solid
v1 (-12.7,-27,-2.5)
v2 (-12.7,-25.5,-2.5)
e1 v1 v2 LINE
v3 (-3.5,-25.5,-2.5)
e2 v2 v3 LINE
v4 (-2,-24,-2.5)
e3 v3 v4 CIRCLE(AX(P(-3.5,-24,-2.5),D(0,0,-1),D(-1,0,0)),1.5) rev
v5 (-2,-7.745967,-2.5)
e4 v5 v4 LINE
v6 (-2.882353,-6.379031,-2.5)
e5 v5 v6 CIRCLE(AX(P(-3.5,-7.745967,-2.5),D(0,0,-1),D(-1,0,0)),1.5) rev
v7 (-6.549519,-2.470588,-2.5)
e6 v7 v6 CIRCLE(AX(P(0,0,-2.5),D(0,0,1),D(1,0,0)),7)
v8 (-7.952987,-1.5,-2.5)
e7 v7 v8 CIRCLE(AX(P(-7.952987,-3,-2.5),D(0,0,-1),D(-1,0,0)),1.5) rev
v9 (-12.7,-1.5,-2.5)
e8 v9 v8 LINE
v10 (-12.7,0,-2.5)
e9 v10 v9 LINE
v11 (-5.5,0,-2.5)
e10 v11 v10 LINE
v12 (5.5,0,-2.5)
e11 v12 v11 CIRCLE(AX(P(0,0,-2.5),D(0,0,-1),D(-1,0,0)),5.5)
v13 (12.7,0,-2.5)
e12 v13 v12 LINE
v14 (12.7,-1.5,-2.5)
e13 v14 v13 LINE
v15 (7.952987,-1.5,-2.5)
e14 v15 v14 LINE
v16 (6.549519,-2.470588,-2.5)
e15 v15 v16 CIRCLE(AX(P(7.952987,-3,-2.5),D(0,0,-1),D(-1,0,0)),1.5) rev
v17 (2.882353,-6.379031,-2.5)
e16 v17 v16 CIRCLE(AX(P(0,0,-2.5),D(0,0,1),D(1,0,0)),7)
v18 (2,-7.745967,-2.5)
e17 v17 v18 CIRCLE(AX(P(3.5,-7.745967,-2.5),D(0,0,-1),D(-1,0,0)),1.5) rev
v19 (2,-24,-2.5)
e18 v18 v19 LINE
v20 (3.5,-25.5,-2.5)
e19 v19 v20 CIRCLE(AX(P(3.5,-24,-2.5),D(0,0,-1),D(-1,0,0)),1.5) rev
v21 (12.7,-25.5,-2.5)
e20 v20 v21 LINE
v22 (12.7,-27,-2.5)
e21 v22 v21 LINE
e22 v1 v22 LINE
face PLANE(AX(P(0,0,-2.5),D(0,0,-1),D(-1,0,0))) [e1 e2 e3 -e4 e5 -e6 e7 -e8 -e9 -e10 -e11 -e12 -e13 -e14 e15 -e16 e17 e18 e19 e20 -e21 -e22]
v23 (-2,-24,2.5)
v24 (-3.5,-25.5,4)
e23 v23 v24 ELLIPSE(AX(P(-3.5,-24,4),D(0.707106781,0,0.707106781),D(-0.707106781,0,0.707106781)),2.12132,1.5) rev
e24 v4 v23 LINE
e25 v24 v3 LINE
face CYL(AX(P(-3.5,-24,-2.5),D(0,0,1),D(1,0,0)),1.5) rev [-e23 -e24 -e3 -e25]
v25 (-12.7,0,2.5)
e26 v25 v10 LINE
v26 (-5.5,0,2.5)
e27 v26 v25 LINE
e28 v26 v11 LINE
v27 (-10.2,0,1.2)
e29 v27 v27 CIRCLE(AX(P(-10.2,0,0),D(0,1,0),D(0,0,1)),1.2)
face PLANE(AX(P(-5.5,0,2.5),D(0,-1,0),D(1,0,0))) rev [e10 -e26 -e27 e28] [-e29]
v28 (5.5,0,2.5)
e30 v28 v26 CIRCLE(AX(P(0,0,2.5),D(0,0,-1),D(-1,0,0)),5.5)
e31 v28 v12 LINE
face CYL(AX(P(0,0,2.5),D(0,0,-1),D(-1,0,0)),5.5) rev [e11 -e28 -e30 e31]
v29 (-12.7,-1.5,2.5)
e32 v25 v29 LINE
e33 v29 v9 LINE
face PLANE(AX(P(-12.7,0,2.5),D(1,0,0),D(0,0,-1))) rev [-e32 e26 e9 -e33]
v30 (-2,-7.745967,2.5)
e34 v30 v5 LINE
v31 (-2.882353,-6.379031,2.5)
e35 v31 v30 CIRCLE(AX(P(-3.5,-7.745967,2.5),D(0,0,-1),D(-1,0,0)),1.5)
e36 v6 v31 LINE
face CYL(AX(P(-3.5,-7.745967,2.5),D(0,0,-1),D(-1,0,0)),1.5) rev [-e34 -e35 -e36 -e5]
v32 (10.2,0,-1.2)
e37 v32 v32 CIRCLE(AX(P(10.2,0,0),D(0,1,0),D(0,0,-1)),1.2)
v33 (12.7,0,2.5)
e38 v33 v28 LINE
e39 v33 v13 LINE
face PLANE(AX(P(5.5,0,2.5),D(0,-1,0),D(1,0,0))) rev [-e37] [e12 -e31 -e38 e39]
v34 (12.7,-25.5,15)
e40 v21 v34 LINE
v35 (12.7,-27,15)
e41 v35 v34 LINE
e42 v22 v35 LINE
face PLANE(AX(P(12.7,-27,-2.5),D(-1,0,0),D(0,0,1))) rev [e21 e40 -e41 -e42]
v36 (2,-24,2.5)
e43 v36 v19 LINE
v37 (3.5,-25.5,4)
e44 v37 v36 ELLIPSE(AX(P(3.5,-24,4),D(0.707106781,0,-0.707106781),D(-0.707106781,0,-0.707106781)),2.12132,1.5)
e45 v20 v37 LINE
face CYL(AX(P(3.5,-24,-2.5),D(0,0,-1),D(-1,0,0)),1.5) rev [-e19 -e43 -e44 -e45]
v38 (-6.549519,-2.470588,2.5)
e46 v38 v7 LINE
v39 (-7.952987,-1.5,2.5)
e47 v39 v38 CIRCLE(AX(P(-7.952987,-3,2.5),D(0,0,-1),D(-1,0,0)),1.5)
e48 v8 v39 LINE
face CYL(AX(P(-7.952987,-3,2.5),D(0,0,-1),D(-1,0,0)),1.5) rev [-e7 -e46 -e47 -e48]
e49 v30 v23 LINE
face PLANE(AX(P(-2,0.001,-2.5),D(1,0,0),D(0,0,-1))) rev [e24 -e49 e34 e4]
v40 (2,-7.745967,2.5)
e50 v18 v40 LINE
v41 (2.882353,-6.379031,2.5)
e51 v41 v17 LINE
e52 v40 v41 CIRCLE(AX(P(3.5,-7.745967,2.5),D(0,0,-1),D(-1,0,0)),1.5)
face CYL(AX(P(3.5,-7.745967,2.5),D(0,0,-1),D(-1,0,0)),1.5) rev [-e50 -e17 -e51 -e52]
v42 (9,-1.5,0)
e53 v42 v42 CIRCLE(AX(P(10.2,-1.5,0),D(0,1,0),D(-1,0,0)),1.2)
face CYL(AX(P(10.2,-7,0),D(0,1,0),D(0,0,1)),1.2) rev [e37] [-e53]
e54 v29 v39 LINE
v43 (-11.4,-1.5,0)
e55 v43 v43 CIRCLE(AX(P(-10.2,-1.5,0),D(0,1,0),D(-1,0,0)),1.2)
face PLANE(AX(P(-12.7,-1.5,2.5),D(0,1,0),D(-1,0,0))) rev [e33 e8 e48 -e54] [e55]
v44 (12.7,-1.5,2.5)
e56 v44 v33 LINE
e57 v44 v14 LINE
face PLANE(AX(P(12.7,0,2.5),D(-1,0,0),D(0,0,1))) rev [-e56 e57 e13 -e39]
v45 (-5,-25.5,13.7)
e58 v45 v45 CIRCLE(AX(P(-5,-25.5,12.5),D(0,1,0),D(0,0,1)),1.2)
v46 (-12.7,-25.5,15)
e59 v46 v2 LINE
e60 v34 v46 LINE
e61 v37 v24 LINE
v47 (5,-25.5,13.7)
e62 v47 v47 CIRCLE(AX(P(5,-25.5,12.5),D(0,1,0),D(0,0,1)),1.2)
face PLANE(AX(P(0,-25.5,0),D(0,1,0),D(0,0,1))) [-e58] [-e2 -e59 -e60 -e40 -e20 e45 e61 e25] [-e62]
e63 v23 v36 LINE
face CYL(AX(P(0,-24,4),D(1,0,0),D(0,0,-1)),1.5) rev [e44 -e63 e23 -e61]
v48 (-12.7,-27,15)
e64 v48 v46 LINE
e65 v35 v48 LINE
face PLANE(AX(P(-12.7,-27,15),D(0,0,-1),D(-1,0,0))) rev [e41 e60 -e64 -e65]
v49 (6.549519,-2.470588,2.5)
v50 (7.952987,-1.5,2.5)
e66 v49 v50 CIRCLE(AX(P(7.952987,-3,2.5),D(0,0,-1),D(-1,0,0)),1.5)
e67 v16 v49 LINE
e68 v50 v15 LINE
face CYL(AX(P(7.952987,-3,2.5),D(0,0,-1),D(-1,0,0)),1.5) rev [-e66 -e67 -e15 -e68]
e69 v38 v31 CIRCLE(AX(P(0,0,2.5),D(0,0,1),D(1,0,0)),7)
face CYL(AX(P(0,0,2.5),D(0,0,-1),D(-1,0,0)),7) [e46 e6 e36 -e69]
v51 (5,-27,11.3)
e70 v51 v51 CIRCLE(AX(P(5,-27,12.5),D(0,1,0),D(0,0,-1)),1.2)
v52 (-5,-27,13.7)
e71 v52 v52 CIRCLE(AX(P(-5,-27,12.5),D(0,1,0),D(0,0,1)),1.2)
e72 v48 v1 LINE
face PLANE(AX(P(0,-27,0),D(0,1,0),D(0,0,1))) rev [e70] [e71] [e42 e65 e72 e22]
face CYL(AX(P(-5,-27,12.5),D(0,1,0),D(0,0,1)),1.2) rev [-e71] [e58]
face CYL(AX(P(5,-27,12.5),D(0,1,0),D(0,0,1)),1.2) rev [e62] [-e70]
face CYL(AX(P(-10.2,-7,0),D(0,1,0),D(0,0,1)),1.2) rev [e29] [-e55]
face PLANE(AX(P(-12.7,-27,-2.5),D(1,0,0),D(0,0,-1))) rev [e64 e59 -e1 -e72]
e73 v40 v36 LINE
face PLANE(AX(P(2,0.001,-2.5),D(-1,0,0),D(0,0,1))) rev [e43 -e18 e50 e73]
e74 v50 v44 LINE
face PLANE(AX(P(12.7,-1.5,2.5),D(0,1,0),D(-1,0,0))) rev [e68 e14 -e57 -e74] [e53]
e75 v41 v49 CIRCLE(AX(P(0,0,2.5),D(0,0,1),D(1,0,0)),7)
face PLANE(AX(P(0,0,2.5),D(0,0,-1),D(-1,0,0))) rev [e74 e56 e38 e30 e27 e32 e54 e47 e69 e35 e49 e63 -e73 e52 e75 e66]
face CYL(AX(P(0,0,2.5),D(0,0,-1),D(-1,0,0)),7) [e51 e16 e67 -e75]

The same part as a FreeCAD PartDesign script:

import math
import FreeCAD as App
import Part
import Sketcher


def edges_at(feature, points):
    """Names of the edges that pass closest to the given points."""
    edges = feature.Shape.Edges
    near = lambda p: min(range(len(edges)), key=lambda i: edges[i].distToShape(Part.Vertex(*p))[0])
    return sorted({f"Edge{near(p) + 1}" for p in points})


def add_polygon(sketch, points):
    """Adds a closed chain of lines whose ends are joined by coincident constraints."""
    first, n = sketch.GeometryCount, len(points)
    for a, b in zip(points, points[1:] + points[:1]):
        sketch.addGeometry(Part.LineSegment(App.Vector(*a, 0), App.Vector(*b, 0)), False)
    for i in range(n):
        sketch.addConstraint(Sketcher.Constraint("Coincident", first + i, 2, first + (i + 1) % n, 1))

doc = App.newDocument("Part")
body = doc.addObject("PartDesign::Body", "Body")

# Sketch on XY plane
sketch1 = body.newObject("Sketcher::SketchObject", "Sketch")
sketch1.AttachmentSupport = (doc.getObject("XY_Plane"), [""])
sketch1.MapMode = "FlatFace"
sketch1.addGeometry([
    Part.LineSegment(App.Vector(12.7, 0, 0), App.Vector(5.5, 0, 0)),  # 0
    Part.ArcOfCircle(Part.Circle(App.Vector(0, 0, 0), App.Vector(0, 0, 1), 5.5), math.radians(180), math.radians(360)),  # 1
    Part.LineSegment(App.Vector(-5.5, 0, 0), App.Vector(-12.7, 0, 0)),  # 2
    Part.LineSegment(App.Vector(-12.7, 0, 0), App.Vector(-12.7, -1.5, 0)),  # 3
    Part.LineSegment(App.Vector(-12.7, -1.5, 0), App.Vector(-6.8, -1.5, 0)),  # 4
    Part.ArcOfCircle(Part.Circle(App.Vector(0, 0, 0), App.Vector(0, 0, 1), 7), math.radians(-168), math.radians(-12)),  # 5
    Part.LineSegment(App.Vector(6.8, -1.5, 0), App.Vector(12.7, -1.5, 0)),  # 6
    Part.LineSegment(App.Vector(12.7, -1.5, 0), App.Vector(12.7, 0, 0)),  # 7
], False)
sketch1.addConstraint([
    Sketcher.Constraint("Coincident", 0, 2, 1, 2),
    Sketcher.Constraint("Coincident", 1, 1, 2, 1),
    Sketcher.Constraint("Coincident", 2, 2, 3, 1),
    Sketcher.Constraint("Coincident", 3, 2, 4, 1),
    Sketcher.Constraint("Coincident", 4, 2, 5, 1),
    Sketcher.Constraint("Coincident", 5, 2, 6, 1),
    Sketcher.Constraint("Coincident", 6, 2, 7, 1),
    Sketcher.Constraint("Coincident", 7, 2, 0, 1),
    Sketcher.Constraint("Horizontal", 0),
    Sketcher.Constraint("Horizontal", 2),
    Sketcher.Constraint("Vertical", 3),
    Sketcher.Constraint("Horizontal", 4),
    Sketcher.Constraint("Horizontal", 6),
    Sketcher.Constraint("Vertical", 7),
    Sketcher.Constraint("Coincident", 1, 3, -1, 1),
    Sketcher.Constraint("Coincident", 5, 3, -1, 1),
    Sketcher.Constraint("Symmetric", 2, 2, 7, 2, -1, 1),
    Sketcher.Constraint("PointOnObject", 0, 2, -1),
    Sketcher.Constraint("Horizontal", 4, 2, 5, 2),
    Sketcher.Constraint("Radius", 5, 7.0),
    Sketcher.Constraint("Radius", 1, 5.5),
    Sketcher.Constraint("DistanceX", 0, 2, 0, 1, 7.2),
    Sketcher.Constraint("DistanceY", 3, 2, 3, 1, 1.5),
])
pad1 = body.newObject("PartDesign::Pad", "Pad")
pad1.Profile = sketch1
pad1.Length = 5
pad1.Midplane = True

# Sketch on XZ plane
sketch2 = body.newObject("Sketcher::SketchObject", "Sketch001")
sketch2.AttachmentSupport = (doc.getObject("XZ_Plane"), [""])
sketch2.MapMode = "FlatFace"
sketch2.addGeometry([
    Part.Circle(App.Vector(-10.2, 0, 0), App.Vector(0, 0, 1), 1.2),
    Part.Circle(App.Vector(10.2, 0, 0), App.Vector(0, 0, 1), 1.2),
], False)
sketch2.addConstraint([
    Sketcher.Constraint("Equal", 0, 1),
    Sketcher.Constraint("Symmetric", 0, 3, 1, 3, -1, 1),
    Sketcher.Constraint("PointOnObject", 0, 3, -1),
    Sketcher.Constraint("Diameter", 0, 2.4),
    Sketcher.Constraint("DistanceX", 0, 3, -1, 1, 10.2),
])
pocket1 = body.newObject("PartDesign::Pocket", "Pocket")
pocket1.Profile = sketch2
pocket1.Type = "ThroughAll"
pocket1.Reversed = True

# Sketch on XZ plane
sketch3 = body.newObject("Sketcher::SketchObject", "Sketch002")
sketch3.AttachmentSupport = (doc.getObject("XZ_Plane"), [""])
sketch3.MapMode = "FlatFace"
sketch3.AttachmentOffset = App.Placement(App.Vector(0, 0, 25.5), App.Rotation())
add_polygon(sketch3, [(-2, -2.5), (-2, 2.5), (2, 2.5), (2, -2.5)])  # lines 0-3
sketch3.addConstraint([
    Sketcher.Constraint("Vertical", 0),
    Sketcher.Constraint("Horizontal", 1),
    Sketcher.Constraint("Vertical", 2),
    Sketcher.Constraint("Horizontal", 3),
    Sketcher.Constraint("Symmetric", 0, 2, 2, 2, -1, 1),
    Sketcher.Constraint("DistanceX", 1, 1, 1, 2, 4.0),
    Sketcher.Constraint("DistanceY", 0, 1, 0, 2, 5.0),
])
pad2 = body.newObject("PartDesign::Pad", "Pad001")
pad2.Profile = sketch3
pad2.Length = 18.791796
pad2.Reversed = True

# Sketch on XZ plane
sketch4 = body.newObject("Sketcher::SketchObject", "Sketch003")
sketch4.AttachmentSupport = (doc.getObject("XZ_Plane"), [""])
sketch4.MapMode = "FlatFace"
sketch4.AttachmentOffset = App.Placement(App.Vector(0, 0, 25.5), App.Rotation())
add_polygon(sketch4, [(-13, 15), (-13, -2), (13, -2), (13, 15)])  # lines 0-3
sketch4.addConstraint([
    Sketcher.Constraint("Vertical", 0),
    Sketcher.Constraint("Horizontal", 1),
    Sketcher.Constraint("Vertical", 2),
    Sketcher.Constraint("Horizontal", 3),
    Sketcher.Constraint("DistanceX", 1, 1, 1, 2, 25.4),
    Sketcher.Constraint("DistanceY", 0, 2, 0, 1, 17.5),
    Sketcher.Constraint("DistanceY", -1, 1, 2, 2, 15.0),
    Sketcher.Constraint("DistanceX", 0, 2, -1, 1, 12.7),
])
pad3 = body.newObject("PartDesign::Pad", "Pad002")
pad3.Profile = sketch4
pad3.Length = 1.5
doc.recompute()

fillet = body.newObject("PartDesign::Fillet", "Fillet")
fillet.Base = (pad3, edges_at(pad3, [
    (6.837, -1.5, 0),
    (-6.837, -1.5, 0),
    (-2, -25.5, 0),
    (0, -25.5, 2.5),
    (2, -25.5, 0),
    (-2, -6.708, 0),
    (2, -6.708, 0),
]))
fillet.Radius = 1.5

# Sketch on XZ plane
sketch5 = body.newObject("Sketcher::SketchObject", "Sketch004")
sketch5.AttachmentSupport = (doc.getObject("XZ_Plane"), [""])
sketch5.MapMode = "FlatFace"
sketch5.addGeometry([
    Part.Circle(App.Vector(-5, 12.5, 0), App.Vector(0, 0, 1), 1.2),
    Part.Circle(App.Vector(5, 12.5, 0), App.Vector(0, 0, 1), 1.2),
], False)
sketch5.addConstraint([
    Sketcher.Constraint("Equal", 0, 1),
    Sketcher.Constraint("Symmetric", 0, 3, 1, 3, -2),
    Sketcher.Constraint("Diameter", 0, 2.4),
    Sketcher.Constraint("DistanceX", 0, 3, -1, 1, 5.0),
    Sketcher.Constraint("DistanceY", -1, 1, 0, 3, 12.5),
])
pocket2 = body.newObject("PartDesign::Pocket", "Pocket001")
pocket2.Profile = sketch5
pocket2.Type = "ThroughAll"
pocket2.Reversed = True

doc.recompute()
